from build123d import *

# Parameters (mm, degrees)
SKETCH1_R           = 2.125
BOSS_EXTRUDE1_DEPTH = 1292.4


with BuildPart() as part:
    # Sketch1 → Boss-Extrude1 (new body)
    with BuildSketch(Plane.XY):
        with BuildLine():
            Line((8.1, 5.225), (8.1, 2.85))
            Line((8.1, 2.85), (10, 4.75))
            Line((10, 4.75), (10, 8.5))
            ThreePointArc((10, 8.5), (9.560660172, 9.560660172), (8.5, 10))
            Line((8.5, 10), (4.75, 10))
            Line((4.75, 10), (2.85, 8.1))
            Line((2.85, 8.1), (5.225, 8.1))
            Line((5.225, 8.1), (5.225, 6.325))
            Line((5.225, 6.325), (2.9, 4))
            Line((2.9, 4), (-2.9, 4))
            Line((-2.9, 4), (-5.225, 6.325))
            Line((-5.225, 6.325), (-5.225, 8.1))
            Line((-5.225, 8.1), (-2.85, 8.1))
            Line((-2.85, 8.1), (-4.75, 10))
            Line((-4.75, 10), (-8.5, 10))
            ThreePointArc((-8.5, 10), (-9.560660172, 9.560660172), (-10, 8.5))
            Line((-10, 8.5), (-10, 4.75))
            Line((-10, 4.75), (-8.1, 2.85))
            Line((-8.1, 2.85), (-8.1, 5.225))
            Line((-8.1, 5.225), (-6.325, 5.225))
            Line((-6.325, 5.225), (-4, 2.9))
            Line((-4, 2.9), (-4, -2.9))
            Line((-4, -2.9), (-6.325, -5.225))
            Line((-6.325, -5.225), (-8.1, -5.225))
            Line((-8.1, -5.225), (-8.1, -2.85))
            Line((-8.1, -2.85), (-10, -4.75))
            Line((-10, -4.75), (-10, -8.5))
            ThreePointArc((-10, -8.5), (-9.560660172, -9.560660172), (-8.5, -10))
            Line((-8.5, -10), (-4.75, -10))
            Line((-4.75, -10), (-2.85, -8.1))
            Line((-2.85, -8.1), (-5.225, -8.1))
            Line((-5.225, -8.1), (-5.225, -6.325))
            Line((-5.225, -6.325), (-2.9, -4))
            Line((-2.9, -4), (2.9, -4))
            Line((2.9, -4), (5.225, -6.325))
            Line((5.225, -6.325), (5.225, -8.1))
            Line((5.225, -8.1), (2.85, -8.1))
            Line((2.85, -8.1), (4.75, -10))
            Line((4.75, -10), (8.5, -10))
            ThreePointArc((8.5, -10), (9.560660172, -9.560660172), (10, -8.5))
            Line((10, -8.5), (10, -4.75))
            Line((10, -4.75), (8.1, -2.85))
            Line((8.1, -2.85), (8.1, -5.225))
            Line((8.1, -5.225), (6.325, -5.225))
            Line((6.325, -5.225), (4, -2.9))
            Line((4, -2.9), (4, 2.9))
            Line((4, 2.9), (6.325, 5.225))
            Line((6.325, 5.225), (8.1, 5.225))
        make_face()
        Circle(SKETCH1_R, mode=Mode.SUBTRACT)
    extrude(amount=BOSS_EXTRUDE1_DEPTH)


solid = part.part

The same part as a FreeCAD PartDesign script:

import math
import FreeCAD as App
import Part
import Sketcher
from FreeCAD import Vector

doc = App.newDocument("Part")
params = doc.addObject("Spreadsheet::Sheet", "Params")
for row, (alias, value) in enumerate([
    ("sketch1_radius", "1.5 mm"),
    ("sketch1_diameter", "4.25 mm"),
    ("sketch1_width", "5.8 mm"),
    ("sketch1_width2", "3.75 mm"),
    ("pad1_length", "1292.4 mm"),
], start=1):
    params.set(f"A{row}", alias)
    params.set(f"B{row}", "=" + value)
    params.setAlias(f"B{row}", alias)

body = doc.addObject("PartDesign::Body", "Body")

# Sketch on XY plane
sketch1 = body.newObject("Sketcher::SketchObject", "Sketch")
sketch1.AttachmentSupport = (doc.getObject("XY_Plane"), [""])
sketch1.MapMode = "FlatFace"
sketch1.addGeometry(Part.LineSegment(Vector(8.1, 5.2, 0), Vector(8.1, 2.9, 0)), False)
sketch1.addGeometry(Part.LineSegment(Vector(8.1, 2.9, 0), Vector(10, 4.8, 0)), False)
sketch1.addGeometry(Part.LineSegment(Vector(10, 4.8, 0), Vector(10, 8.5, 0)), False)
sketch1.addGeometry(Part.ArcOfCircle(Part.Circle(Vector(8.5, 8.5, 0), Vector(0, 0, 1), 1.5), math.radians(0), math.radians(90)), False)
sketch1.addGeometry(Part.LineSegment(Vector(8.5, 10, 0), Vector(4.8, 10, 0)), False)
sketch1.addGeometry(Part.LineSegment(Vector(4.8, 10, 0), Vector(2.9, 8.1, 0)), False)
sketch1.addGeometry(Part.LineSegment(Vector(2.9, 8.1, 0), Vector(5.2, 8.1, 0)), False)
sketch1.addGeometry(Part.LineSegment(Vector(5.2, 8.1, 0), Vector(5.2, 6.3, 0)), False)
sketch1.addGeometry(Part.LineSegment(Vector(5.2, 6.3, 0), Vector(2.9, 4, 0)), False)
sketch1.addGeometry(Part.LineSegment(Vector(2.9, 4, 0), Vector(-2.9, 4, 0)), False)
sketch1.addGeometry(Part.LineSegment(Vector(-2.9, 4, 0), Vector(-5.2, 6.3, 0)), False)
sketch1.addGeometry(Part.LineSegment(Vector(-5.2, 6.3, 0), Vector(-5.2, 8.1, 0)), False)
sketch1.addGeometry(Part.LineSegment(Vector(-5.2, 8.1, 0), Vector(-2.9, 8.1, 0)), False)
sketch1.addGeometry(Part.LineSegment(Vector(-2.9, 8.1, 0), Vector(-4.8, 10, 0)), False)
sketch1.addGeometry(Part.LineSegment(Vector(-4.8, 10, 0), Vector(-8.5, 10, 0)), False)
sketch1.addGeometry(Part.ArcOfCircle(Part.Circle(Vector(-8.5, 8.5, 0), Vector(0, 0, 1), 1.5), math.radians(90), math.radians(180)), False)
sketch1.addGeometry(Part.LineSegment(Vector(-10, 8.5, 0), Vector(-10, 4.8, 0)), False)
sketch1.addGeometry(Part.LineSegment(Vector(-10, 4.8, 0), Vector(-8.1, 2.9, 0)), False)
sketch1.addGeometry(Part.LineSegment(Vector(-8.1, 2.9, 0), Vector(-8.1, 5.2, 0)), False)
sketch1.addGeometry(Part.LineSegment(Vector(-8.1, 5.2, 0), Vector(-6.3, 5.2, 0)), False)
sketch1.addGeometry(Part.LineSegment(Vector(-6.3, 5.2, 0), Vector(-4, 2.9, 0)), False)
sketch1.addGeometry(Part.LineSegment(Vector(-4, 2.9, 0), Vector(-4, -2.9, 0)), False)
sketch1.addGeometry(Part.LineSegment(Vector(-4, -2.9, 0), Vector(-6.3, -5.2, 0)), False)
sketch1.addGeometry(Part.LineSegment(Vector(-6.3, -5.2, 0), Vector(-8.1, -5.2, 0)), False)
sketch1.addGeometry(Part.LineSegment(Vector(-8.1, -5.2, 0), Vector(-8.1, -2.9, 0)), False)
sketch1.addGeometry(Part.LineSegment(Vector(-8.1, -2.9, 0), Vector(-10, -4.8, 0)), False)
sketch1.addGeometry(Part.LineSegment(Vector(-10, -4.8, 0), Vector(-10, -8.5, 0)), False)
sketch1.addGeometry(Part.ArcOfCircle(Part.Circle(Vector(-8.5, -8.5, 0), Vector(0, 0, 1), 1.5), math.radians(180), math.radians(270)), False)
sketch1.addGeometry(Part.LineSegment(Vector(-8.5, -10, 0), Vector(-4.8, -10, 0)), False)
sketch1.addGeometry(Part.LineSegment(Vector(-4.8, -10, 0), Vector(-2.9, -8.1, 0)), False)
sketch1.addGeometry(Part.LineSegment(Vector(-2.9, -8.1, 0), Vector(-5.2, -8.1, 0)), False)
sketch1.addGeometry(Part.LineSegment(Vector(-5.2, -8.1, 0), Vector(-5.2, -6.3, 0)), False)
sketch1.addGeometry(Part.LineSegment(Vector(-5.2, -6.3, 0), Vector(-2.9, -4, 0)), False)
sketch1.addGeometry(Part.LineSegment(Vector(-2.9, -4, 0), Vector(2.9, -4, 0)), False)
sketch1.addGeometry(Part.LineSegment(Vector(2.9, -4, 0), Vector(5.2, -6.3, 0)), False)
sketch1.addGeometry(Part.LineSegment(Vector(5.2, -6.3, 0), Vector(5.2, -8.1, 0)), False)
sketch1.addGeometry(Part.LineSegment(Vector(5.2, -8.1, 0), Vector(2.9, -8.1, 0)), False)
sketch1.addGeometry(Part.LineSegment(Vector(2.9, -8.1, 0), Vector(4.8, -10, 0)), False)
sketch1.addGeometry(Part.LineSegment(Vector(4.8, -10, 0), Vector(8.5, -10, 0)), False)
sketch1.addGeometry(Part.ArcOfCircle(Part.Circle(Vector(8.5, -8.5, 0), Vector(0, 0, 1), 1.5), math.radians(-90), math.radians(0)), False)
sketch1.addGeometry(Part.LineSegment(Vector(10, -8.5, 0), Vector(10, -4.8, 0)), False)
sketch1.addGeometry(Part.LineSegment(Vector(10, -4.8, 0), Vector(8.1, -2.9, 0)), False)
sketch1.addGeometry(Part.LineSegment(Vector(8.1, -2.9, 0), Vector(8.1, -5.2, 0)), False)
sketch1.addGeometry(Part.LineSegment(Vector(8.1, -5.2, 0), Vector(6.3, -5.2, 0)), False)
sketch1.addGeometry(Part.LineSegment(Vector(6.3, -5.2, 0), Vector(4, -2.9, 0)), False)
sketch1.addGeometry(Part.LineSegment(Vector(4, -2.9, 0), Vector(4, 2.9, 0)), False)
sketch1.addGeometry(Part.LineSegment(Vector(4, 2.9, 0), Vector(6.3, 5.2, 0)), False)
sketch1.addGeometry(Part.LineSegment(Vector(6.3, 5.2, 0), Vector(8.1, 5.2, 0)), False)
sketch1.addGeometry(Part.Circle(Vector(0, 0, 0), Vector(0, 0, 1), 2.1), False)
sketch1.addConstraint(Sketcher.Constraint("Coincident", 0, 2, 1, 1))
sketch1.addConstraint(Sketcher.Constraint("Coincident", 1, 2, 2, 1))
sketch1.addConstraint(Sketcher.Constraint("Tangent", 2, 2, 3, 1))
sketch1.addConstraint(Sketcher.Constraint("Tangent", 3, 2, 4, 1))
sketch1.addConstraint(Sketcher.Constraint("Coincident", 4, 2, 5, 1))
sketch1.addConstraint(Sketcher.Constraint("Coincident", 5, 2, 6, 1))
sketch1.addConstraint(Sketcher.Constraint("Coincident", 6, 2, 7, 1))
sketch1.addConstraint(Sketcher.Constraint("Coincident", 7, 2, 8, 1))
sketch1.addConstraint(Sketcher.Constraint("Coincident", 8, 2, 9, 1))
sketch1.addConstraint(Sketcher.Constraint("Coincident", 9, 2, 10, 1))
sketch1.addConstraint(Sketcher.Constraint("Coincident", 10, 2, 11, 1))
sketch1.addConstraint(Sketcher.Constraint("Coincident", 11, 2, 12, 1))
sketch1.addConstraint(Sketcher.Constraint("Coincident", 12, 2, 13, 1))
sketch1.addConstraint(Sketcher.Constraint("Coincident", 13, 2, 14, 1))
sketch1.addConstraint(Sketcher.Constraint("Tangent", 14, 2, 15, 1))
sketch1.addConstraint(Sketcher.Constraint("Tangent", 15, 2, 16, 1))
sketch1.addConstraint(Sketcher.Constraint("Coincident", 16, 2, 17, 1))
sketch1.addConstraint(Sketcher.Constraint("Coincident", 17, 2, 18, 1))
sketch1.addConstraint(Sketcher.Constraint("Coincident", 18, 2, 19, 1))
sketch1.addConstraint(Sketcher.Constraint("Coincident", 19, 2, 20, 1))
sketch1.addConstraint(Sketcher.Constraint("Coincident", 20, 2, 21, 1))
sketch1.addConstraint(Sketcher.Constraint("Coincident", 21, 2, 22, 1))
sketch1.addConstraint(Sketcher.Constraint("Coincident", 22, 2, 23, 1))
sketch1.addConstraint(Sketcher.Constraint("Coincident", 23, 2, 24, 1))
sketch1.addConstraint(Sketcher.Constraint("Coincident", 24, 2, 25, 1))
sketch1.addConstraint(Sketcher.Constraint("Coincident", 25, 2, 26, 1))
sketch1.addConstraint(Sketcher.Constraint("Tangent", 26, 2, 27, 1))
sketch1.addConstraint(Sketcher.Constraint("Tangent", 27, 2, 28, 1))
sketch1.addConstraint(Sketcher.Constraint("Coincident", 28, 2, 29, 1))
sketch1.addConstraint(Sketcher.Constraint("Coincident", 29, 2, 30, 1))
sketch1.addConstraint(Sketcher.Constraint("Coincident", 30, 2, 31, 1))
sketch1.addConstraint(Sketcher.Constraint("Coincident", 31, 2, 32, 1))
sketch1.addConstraint(Sketcher.Constraint("Coincident", 32, 2, 33, 1))
sketch1.addConstraint(Sketcher.Constraint("Coincident", 33, 2, 34, 1))
sketch1.addConstraint(Sketcher.Constraint("Coincident", 34, 2, 35, 1))
sketch1.addConstraint(Sketcher.Constraint("Coincident", 35, 2, 36, 1))
sketch1.addConstraint(Sketcher.Constraint("Coincident", 36, 2, 37, 1))
sketch1.addConstraint(Sketcher.Constraint("Coincident", 37, 2, 38, 1))
sketch1.addConstraint(Sketcher.Constraint("Tangent", 38, 2, 39, 1))
sketch1.addConstraint(Sketcher.Constraint("Tangent", 39, 2, 40, 1))
sketch1.addConstraint(Sketcher.Constraint("Coincident", 40, 2, 41, 1))
sketch1.addConstraint(Sketcher.Constraint("Coincident", 41, 2, 42, 1))
sketch1.addConstraint(Sketcher.Constraint("Coincident", 42, 2, 43, 1))
sketch1.addConstraint(Sketcher.Constraint("Coincident", 43, 2, 44, 1))
sketch1.addConstraint(Sketcher.Constraint("Coincident", 44, 2, 45, 1))
sketch1.addConstraint(Sketcher.Constraint("Coincident", 45, 2, 46, 1))
sketch1.addConstraint(Sketcher.Constraint("Coincident", 46, 2, 47, 1))
sketch1.addConstraint(Sketcher.Constraint("Coincident", 47, 2, 0, 1))
sketch1.addConstraint(Sketcher.Constraint("Vertical", 0))
sketch1.addConstraint(Sketcher.Constraint("Vertical", 2))
sketch1.addConstraint(Sketcher.Constraint("Horizontal", 4))
sketch1.addConstraint(Sketcher.Constraint("Horizontal", 6))
sketch1.addConstraint(Sketcher.Constraint("Vertical", 7))
sketch1.addConstraint(Sketcher.Constraint("Horizontal", 9))
sketch1.addConstraint(Sketcher.Constraint("Vertical", 11))
sketch1.addConstraint(Sketcher.Constraint("Horizontal", 12))
sketch1.addConstraint(Sketcher.Constraint("Horizontal", 14))
sketch1.addConstraint(Sketcher.Constraint("Vertical", 16))
sketch1.addConstraint(Sketcher.Constraint("Vertical", 18))
sketch1.addConstraint(Sketcher.Constraint("Horizontal", 19))
sketch1.addConstraint(Sketcher.Constraint("Vertical", 21))
sketch1.addConstraint(Sketcher.Constraint("Horizontal", 23))
sketch1.addConstraint(Sketcher.Constraint("Vertical", 24))
sketch1.addConstraint(Sketcher.Constraint("Vertical", 26))
sketch1.addConstraint(Sketcher.Constraint("Horizontal", 28))
sketch1.addConstraint(Sketcher.Constraint("Horizontal", 30))
sketch1.addConstraint(Sketcher.Constraint("Vertical", 31))
sketch1.addConstraint(Sketcher.Constraint("Horizontal", 33))
sketch1.addConstraint(Sketcher.Constraint("Vertical", 35))
sketch1.addConstraint(Sketcher.Constraint("Horizontal", 36))
sketch1.addConstraint(Sketcher.Constraint("Horizontal", 38))
sketch1.addConstraint(Sketcher.Constraint("Vertical", 40))
sketch1.addConstraint(Sketcher.Constraint("Vertical", 42))
sketch1.addConstraint(Sketcher.Constraint("Horizontal", 43))
sketch1.addConstraint(Sketcher.Constraint("Vertical", 45))
sketch1.addConstraint(Sketcher.Constraint("Horizontal", 47))
sketch1.addConstraint(Sketcher.Constraint("Coincident", 48, 3, -1, 1))
sketch1.addConstraint(Sketcher.Constraint("Equal", 3, 15))
sketch1.addConstraint(Sketcher.Constraint("Equal", 15, 27))
sketch1.addConstraint(Sketcher.Constraint("Equal", 27, 39))
sketch1.addConstraint(Sketcher.Constraint("Symmetric", 3, 3, 27, 3, -1, 1))
sketch1.addConstraint(Sketcher.Constraint("Symmetric", 15, 3, 39, 3, -1, 1))
sketch1.addConstraint(Sketcher.Constraint("Symmetric", 0, 2, 24, 2, -1, 1))
sketch1.addConstraint(Sketcher.Constraint("Symmetric", 5, 2, 29, 2, -1, 1))
sketch1.addConstraint(Sketcher.Constraint("Symmetric", 7, 2, 31, 2, -1, 1))
sketch1.addConstraint(Sketcher.Constraint("Symmetric", 8, 2, 32, 2, -1, 1))
sketch1.addConstraint(Sketcher.Constraint("Symmetric", 10, 2, 34, 2, -1, 1))
sketch1.addConstraint(Sketcher.Constraint("Symmetric", 12, 2, 36, 2, -1, 1))
sketch1.addConstraint(Sketcher.Constraint("Symmetric", 17, 2, 41, 2, -1, 1))
sketch1.addConstraint(Sketcher.Constraint("Symmetric", 19, 2, 43, 2, -1, 1))
sketch1.addConstraint(Sketcher.Constraint("Symmetric", 20, 2, 44, 2, -1, 1))
sketch1.addConstraint(Sketcher.Constraint("Symmetric", 22, 2, 46, 2, -1, 1))
sketch1.addConstraint(Sketcher.Constraint("Symmetric", 3, 3, 15, 3, -2))
sketch1.addConstraint(Sketcher.Constraint("Symmetric", 7, 2, 10, 2, -2))
sketch1.addConstraint(Sketcher.Constraint("Symmetric", 5, 2, 12, 2, -2))
sketch1.addConstraint(Sketcher.Constraint("Symmetric", 0, 2, 17, 2, -2))
sketch1.addConstraint(Sketcher.Constraint("Symmetric", 22, 2, 43, 2, -2))
sketch1.addConstraint(Sketcher.Constraint("Parallel", 1, 5))
sketch1.addConstraint(Sketcher.Constraint("Parallel", 5, 8))
sketch1.addConstraint(Sketcher.Constraint("Perpendicular", 8, 10))
sketch1.addConstraint(Sketcher.Constraint("Parallel", 10, 13))
sketch1.addConstraint(Sketcher.Constraint("Parallel", 13, 17))
sketch1.addConstraint(Sketcher.Constraint("Parallel", 17, 20))
sketch1.addConstraint(Sketcher.Constraint("Perpendicular", 20, 22))
sketch1.addConstraint(Sketcher.Constraint("Parallel", 22, 25))
sketch1.addConstraint(Sketcher.Constraint("Parallel", 25, 29))
sketch1.addConstraint(Sketcher.Constraint("Perpendicular", 32, 34))
sketch1.addConstraint(Sketcher.Constraint("Parallel", 34, 37))
sketch1.addConstraint(Sketcher.Constraint("Parallel", 37, 41))
sketch1.addConstraint(Sketcher.Constraint("Perpendicular", 44, 46))
sketch1.addConstraint(Sketcher.Constraint("Horizontal", 1, 2, 16, 2))
sketch1.addConstraint(Sketcher.Constraint("Equal", 36, 0))
sketch1.addConstraint(Sketcher.Constraint("Equal", 38, 2))
sketch1.addConstraint(Sketcher.Constraint("Equal", 47, 7))
sketch1.addConstraint(Sketcher.Constraint("Equal", 33, 21))
sketch1.addConstraint(Sketcher.Constraint("Equal", 1, 5))
sketch1.addConstraint(Sketcher.Constraint("Equal", 10, 20))
sketch1.addConstraint(Sketcher.Constraint("Radius", 3, 1.5))
sketch1.addConstraint(Sketcher.Constraint("Diameter", 48, 4.25))
sketch1.addConstraint(Sketcher.Constraint("DistanceX", 9, 2, 9, 1, 5.8))
sketch1.addConstraint(Sketcher.Constraint("DistanceX", -1, 1, 1, 2, 10.0))
sketch1.addConstraint(Sketcher.Constraint("DistanceY", -1, 1, 8, 2, 4.0))
sketch1.addConstraint(Sketcher.Constraint("DistanceX", 4, 2, 4, 1, 3.75))
sketch1.addConstraint(Sketcher.Constraint("DistanceX", -1, 1, 0, 2, 8.1))
sketch1.addConstraint(Sketcher.Constraint("DistanceX", 6, 1, 6, 2, 2.375))
sketch1.setExpression("Constraints[117]", "Params.sketch1_radius")
sketch1.setExpression("Constraints[118]", "Params.sketch1_diameter")
sketch1.setExpression("Constraints[119]", "Params.sketch1_width")
sketch1.setExpression("Constraints[122]", "Params.sketch1_width2")
pad1 = body.newObject("PartDesign::Pad", "Pad")
pad1.Profile = sketch1
pad1.setExpression("Length", "Params.pad1_length")

doc.recompute()
